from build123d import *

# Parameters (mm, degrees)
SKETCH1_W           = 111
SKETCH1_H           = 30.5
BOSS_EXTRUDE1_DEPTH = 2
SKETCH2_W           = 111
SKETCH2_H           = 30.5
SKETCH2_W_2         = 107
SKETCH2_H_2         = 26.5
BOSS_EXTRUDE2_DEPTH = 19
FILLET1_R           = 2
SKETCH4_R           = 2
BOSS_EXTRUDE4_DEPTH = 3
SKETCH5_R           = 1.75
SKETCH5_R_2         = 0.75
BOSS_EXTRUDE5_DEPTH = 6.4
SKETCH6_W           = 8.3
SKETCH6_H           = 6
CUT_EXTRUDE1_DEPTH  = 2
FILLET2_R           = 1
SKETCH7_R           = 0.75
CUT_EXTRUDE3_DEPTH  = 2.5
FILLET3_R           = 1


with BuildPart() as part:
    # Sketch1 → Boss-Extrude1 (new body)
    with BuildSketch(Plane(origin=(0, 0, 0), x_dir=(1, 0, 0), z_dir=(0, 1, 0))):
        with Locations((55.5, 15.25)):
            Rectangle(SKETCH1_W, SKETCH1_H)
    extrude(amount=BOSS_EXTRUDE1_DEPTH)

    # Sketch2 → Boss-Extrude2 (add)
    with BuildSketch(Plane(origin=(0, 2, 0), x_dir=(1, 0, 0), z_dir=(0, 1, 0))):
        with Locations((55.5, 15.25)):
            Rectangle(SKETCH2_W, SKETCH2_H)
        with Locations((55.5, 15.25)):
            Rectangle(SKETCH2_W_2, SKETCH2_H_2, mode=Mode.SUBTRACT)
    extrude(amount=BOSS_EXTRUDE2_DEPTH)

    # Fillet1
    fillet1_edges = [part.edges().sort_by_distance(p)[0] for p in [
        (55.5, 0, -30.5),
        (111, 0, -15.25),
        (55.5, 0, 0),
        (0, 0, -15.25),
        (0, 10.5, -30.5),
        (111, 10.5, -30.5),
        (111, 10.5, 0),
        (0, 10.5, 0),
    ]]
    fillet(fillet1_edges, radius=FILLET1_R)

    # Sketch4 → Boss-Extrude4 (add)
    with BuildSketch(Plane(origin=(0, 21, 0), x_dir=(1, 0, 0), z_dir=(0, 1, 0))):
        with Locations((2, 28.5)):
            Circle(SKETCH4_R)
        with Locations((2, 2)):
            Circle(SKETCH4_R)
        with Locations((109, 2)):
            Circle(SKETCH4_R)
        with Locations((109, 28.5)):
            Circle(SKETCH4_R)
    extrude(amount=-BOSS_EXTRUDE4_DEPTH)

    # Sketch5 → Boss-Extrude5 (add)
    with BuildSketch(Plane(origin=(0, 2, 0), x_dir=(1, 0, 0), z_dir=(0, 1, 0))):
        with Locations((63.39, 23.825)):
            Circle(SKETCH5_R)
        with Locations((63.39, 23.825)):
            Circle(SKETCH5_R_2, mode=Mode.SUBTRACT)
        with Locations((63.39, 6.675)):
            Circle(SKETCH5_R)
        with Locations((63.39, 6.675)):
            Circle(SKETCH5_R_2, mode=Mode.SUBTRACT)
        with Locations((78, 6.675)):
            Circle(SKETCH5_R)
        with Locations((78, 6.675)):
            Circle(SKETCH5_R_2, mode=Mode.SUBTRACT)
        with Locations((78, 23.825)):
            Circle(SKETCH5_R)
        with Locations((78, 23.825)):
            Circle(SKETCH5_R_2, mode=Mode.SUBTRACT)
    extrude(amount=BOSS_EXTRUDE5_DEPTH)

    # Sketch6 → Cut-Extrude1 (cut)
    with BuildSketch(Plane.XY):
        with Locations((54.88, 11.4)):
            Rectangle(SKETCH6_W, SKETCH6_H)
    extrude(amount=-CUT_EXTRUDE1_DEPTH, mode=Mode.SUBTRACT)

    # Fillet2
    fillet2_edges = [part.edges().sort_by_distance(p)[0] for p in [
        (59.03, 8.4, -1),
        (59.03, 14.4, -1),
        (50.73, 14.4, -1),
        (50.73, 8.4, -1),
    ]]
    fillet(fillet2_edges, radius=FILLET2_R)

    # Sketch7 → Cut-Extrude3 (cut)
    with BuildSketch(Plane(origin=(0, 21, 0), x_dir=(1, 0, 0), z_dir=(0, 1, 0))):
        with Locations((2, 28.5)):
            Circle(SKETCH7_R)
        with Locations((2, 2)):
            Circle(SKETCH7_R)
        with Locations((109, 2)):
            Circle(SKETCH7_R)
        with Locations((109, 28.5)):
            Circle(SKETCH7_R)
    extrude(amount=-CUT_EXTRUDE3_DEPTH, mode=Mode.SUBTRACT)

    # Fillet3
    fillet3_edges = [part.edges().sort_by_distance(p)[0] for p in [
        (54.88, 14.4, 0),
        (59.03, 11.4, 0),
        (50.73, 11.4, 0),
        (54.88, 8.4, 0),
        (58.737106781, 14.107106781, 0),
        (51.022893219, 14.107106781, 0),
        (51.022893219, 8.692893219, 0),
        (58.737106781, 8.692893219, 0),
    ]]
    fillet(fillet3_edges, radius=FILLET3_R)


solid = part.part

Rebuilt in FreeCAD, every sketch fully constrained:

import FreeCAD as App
import Part
import Sketcher
Q = App.Units.Quantity


def edges_at(feature, points):
    """Names of the edges that pass closest to the given points."""
    edges = feature.Shape.Edges
    near = lambda p: min(range(len(edges)), key=lambda i: edges[i].distToShape(Part.Vertex(*p))[0])
    return sorted({f"Edge{near(p) + 1}" for p in points})

doc = App.newDocument("Part")
body = doc.addObject("PartDesign::Body", "Body")

sketch1 = body.newObject("Sketcher::SketchObject", "Sketch")
sketch1.AttachmentSupport = (doc.getObject("XZ_Plane"), [""])
sketch1.MapMode = "FlatFace"
sketch1.addGeometry(Part.LineSegment(App.Vector(0, -30, 0), App.Vector(0, 0, 0)), False)
sketch1.addGeometry(Part.LineSegment(App.Vector(0, 0, 0), App.Vector(111, 0, 0)), False)
sketch1.addGeometry(Part.LineSegment(App.Vector(111, 0, 0), App.Vector(111, -30, 0)), False)
sketch1.addGeometry(Part.LineSegment(App.Vector(111, -30, 0), App.Vector(0, -30, 0)), False)
sketch1.addConstraint(Sketcher.Constraint("Coincident", 0, 2, 1, 1))
sketch1.addConstraint(Sketcher.Constraint("Coincident", 1, 2, 2, 1))
sketch1.addConstraint(Sketcher.Constraint("Coincident", 2, 2, 3, 1))
sketch1.addConstraint(Sketcher.Constraint("Coincident", 3, 2, 0, 1))
sketch1.addConstraint(Sketcher.Constraint("Vertical", 0))
sketch1.addConstraint(Sketcher.Constraint("Horizontal", 1))
sketch1.addConstraint(Sketcher.Constraint("Vertical", 2))
sketch1.addConstraint(Sketcher.Constraint("Horizontal", 3))
sketch1.addConstraint(Sketcher.Constraint("Coincident", 0, 2, -1, 1))
sketch1.addConstraint(Sketcher.Constraint("DistanceX", 1, 1, 1, 2, Q("111 mm")))
sketch1.addConstraint(Sketcher.Constraint("DistanceY", 0, 1, 0, 2, Q("30.5 mm")))
pad1 = body.newObject("PartDesign::Pad", "Pad")
pad1.Profile = sketch1
pad1.Length = 2
pad1.Reversed = True

sketch2 = body.newObject("Sketcher::SketchObject", "Sketch001")
sketch2.AttachmentSupport = (doc.getObject("XZ_Plane"), [""])
sketch2.MapMode = "FlatFace"
sketch2.AttachmentOffset = App.Placement(App.Vector(0, 0, -2), App.Rotation())
sketch2.addGeometry(Part.LineSegment(App.Vector(0, -30, 0), App.Vector(0, 0, 0)), False)
sketch2.addGeometry(Part.LineSegment(App.Vector(0, 0, 0), App.Vector(111, 0, 0)), False)
sketch2.addGeometry(Part.LineSegment(App.Vector(111, 0, 0), App.Vector(111, -30, 0)), False)
sketch2.addGeometry(Part.LineSegment(App.Vector(111, -30, 0), App.Vector(0, -30, 0)), False)
sketch2.addGeometry(Part.LineSegment(App.Vector(109, -2, 0), App.Vector(2, -2, 0)), False)
sketch2.addGeometry(Part.LineSegment(App.Vector(2, -2, 0), App.Vector(2, -28, 0)), False)
sketch2.addGeometry(Part.LineSegment(App.Vector(2, -28, 0), App.Vector(109, -28, 0)), False)
sketch2.addGeometry(Part.LineSegment(App.Vector(109, -28, 0), App.Vector(109, -2, 0)), False)
sketch2.addConstraint(Sketcher.Constraint("Coincident", 0, 2, 1, 1))
sketch2.addConstraint(Sketcher.Constraint("Coincident", 1, 2, 2, 1))
sketch2.addConstraint(Sketcher.Constraint("Coincident", 2, 2, 3, 1))
sketch2.addConstraint(Sketcher.Constraint("Coincident", 3, 2, 0, 1))
sketch2.addConstraint(Sketcher.Constraint("Coincident", 4, 2, 5, 1))
sketch2.addConstraint(Sketcher.Constraint("Coincident", 5, 2, 6, 1))
sketch2.addConstraint(Sketcher.Constraint("Coincident", 6, 2, 7, 1))
sketch2.addConstraint(Sketcher.Constraint("Coincident", 7, 2, 4, 1))
sketch2.addConstraint(Sketcher.Constraint("Vertical", 0))
sketch2.addConstraint(Sketcher.Constraint("Horizontal", 1))
sketch2.addConstraint(Sketcher.Constraint("Vertical", 2))
sketch2.addConstraint(Sketcher.Constraint("Horizontal", 3))
sketch2.addConstraint(Sketcher.Constraint("Horizontal", 4))
sketch2.addConstraint(Sketcher.Constraint("Vertical", 5))
sketch2.addConstraint(Sketcher.Constraint("Horizontal", 6))
sketch2.addConstraint(Sketcher.Constraint("Vertical", 7))
sketch2.addConstraint(Sketcher.Constraint("Coincident", 0, 2, -1, 1))
sketch2.addConstraint(Sketcher.Constraint("DistanceX", 1, 1, 1, 2, Q("111 mm")))
sketch2.addConstraint(Sketcher.Constraint("DistanceX", 4, 2, 4, 1, Q("107 mm")))
sketch2.addConstraint(Sketcher.Constraint("DistanceY", 0, 1, 0, 2, Q("30.5 mm")))
sketch2.addConstraint(Sketcher.Constraint("DistanceY", 5, 2, 5, 1, Q("26.5 mm")))
sketch2.addConstraint(Sketcher.Constraint("DistanceX", -1, 1, 4, 2, Q("2 mm")))
sketch2.addConstraint(Sketcher.Constraint("DistanceY", 4, 2, -1, 1, Q("2 mm")))
pad2 = body.newObject("PartDesign::Pad", "Pad001")
pad2.Profile = sketch2
pad2.Length = 19
pad2.Reversed = True
doc.recompute()

fillet = body.newObject("PartDesign::Fillet", "Fillet")
fillet.Base = (pad2, edges_at(pad2, [
    (55.5, 0, -30.5),
    (111, 0, -15.25),
    (55.5, 0, 0),
    (0, 0, -15.25),
    (0, 10.5, -30.5),
    (111, 10.5, -30.5),
    (111, 10.5, 0),
    (0, 10.5, 0),
]))
fillet.Radius = 2

sketch3 = body.newObject("Sketcher::SketchObject", "Sketch002")
sketch3.AttachmentSupport = (doc.getObject("XZ_Plane"), [""])
sketch3.MapMode = "FlatFace"
sketch3.AttachmentOffset = App.Placement(App.Vector(0, 0, -21), App.Rotation())
sketch3.addGeometry(Part.Circle(App.Vector(2, -28.5, 0), App.Vector(0, 0, 1), 2), False)
sketch3.addGeometry(Part.Circle(App.Vector(2, -2, 0), App.Vector(0, 0, 1), 2), False)
sketch3.addGeometry(Part.Circle(App.Vector(109, -2, 0), App.Vector(0, 0, 1), 2), False)
sketch3.addGeometry(Part.Circle(App.Vector(109, -28.5, 0), App.Vector(0, 0, 1), 2), False)
sketch3.addConstraint(Sketcher.Constraint("Equal", 0, 1))
sketch3.addConstraint(Sketcher.Constraint("Equal", 1, 2))
sketch3.addConstraint(Sketcher.Constraint("Equal", 2, 3))
sketch3.addConstraint(Sketcher.Constraint("Horizontal", 1, 3, 2, 3))
sketch3.addConstraint(Sketcher.Constraint("Horizontal", 0, 3, 3, 3))
sketch3.addConstraint(Sketcher.Constraint("Vertical", 0, 3, 1, 3))
sketch3.addConstraint(Sketcher.Constraint("Vertical", 2, 3, 3, 3))
sketch3.addConstraint(Sketcher.Constraint("Diameter", 0, Q("4 mm")))
sketch3.addConstraint(Sketcher.Constraint("DistanceX", -1, 1, 0, 3, Q("2 mm")))
sketch3.addConstraint(Sketcher.Constraint("DistanceY", 1, 3, -1, 1, Q("2 mm")))
sketch3.addConstraint(Sketcher.Constraint("DistanceX", -1, 1, 2, 3, Q("109 mm")))
sketch3.addConstraint(Sketcher.Constraint("DistanceY", 0, 3, -1, 1, Q("28.5 mm")))
pad3 = body.newObject("PartDesign::Pad", "Pad002")
pad3.Profile = sketch3
pad3.Length = 3

sketch4 = body.newObject("Sketcher::SketchObject", "Sketch003")
sketch4.AttachmentSupport = (doc.getObject("XZ_Plane"), [""])
sketch4.MapMode = "FlatFace"
sketch4.AttachmentOffset = App.Placement(App.Vector(0, 0, -2), App.Rotation())
sketch4.addGeometry(Part.Circle(App.Vector(63.4, -23.8, 0), App.Vector(0, 0, 1), 1.8), False)
sketch4.addGeometry(Part.Circle(App.Vector(63.4, -23.8, 0), App.Vector(0, 0, 1), 0.8), False)
sketch4.addGeometry(Part.Circle(App.Vector(63.4, -6.7, 0), App.Vector(0, 0, 1), 1.8), False)
sketch4.addGeometry(Part.Circle(App.Vector(63.4, -6.7, 0), App.Vector(0, 0, 1), 0.8), False)
sketch4.addGeometry(Part.Circle(App.Vector(78, -6.7, 0), App.Vector(0, 0, 1), 1.8), False)
sketch4.addGeometry(Part.Circle(App.Vector(78, -6.7, 0), App.Vector(0, 0, 1), 0.8), False)
sketch4.addGeometry(Part.Circle(App.Vector(78, -23.8, 0), App.Vector(0, 0, 1), 1.8), False)
sketch4.addGeometry(Part.Circle(App.Vector(78, -23.8, 0), App.Vector(0, 0, 1), 0.8), False)
sketch4.addConstraint(Sketcher.Constraint("Coincident", 1, 3, 0, 3))
sketch4.addConstraint(Sketcher.Constraint("Coincident", 3, 3, 2, 3))
sketch4.addConstraint(Sketcher.Constraint("Coincident", 5, 3, 4, 3))
sketch4.addConstraint(Sketcher.Constraint("Coincident", 7, 3, 6, 3))
sketch4.addConstraint(Sketcher.Constraint("Equal", 0, 2))
sketch4.addConstraint(Sketcher.Constraint("Equal", 1, 3))
sketch4.addConstraint(Sketcher.Constraint("Equal", 2, 4))
sketch4.addConstraint(Sketcher.Constraint("Equal", 3, 5))
sketch4.addConstraint(Sketcher.Constraint("Equal", 4, 6))
sketch4.addConstraint(Sketcher.Constraint("Equal", 5, 7))
sketch4.addConstraint(Sketcher.Constraint("Horizontal", 3, 3, 4, 3))
sketch4.addConstraint(Sketcher.Constraint("Horizontal", 1, 3, 6, 3))
sketch4.addConstraint(Sketcher.Constraint("Vertical", 1, 3, 2, 3))
sketch4.addConstraint(Sketcher.Constraint("Vertical", 5, 3, 6, 3))
sketch4.addConstraint(Sketcher.Constraint("Diameter", 0, Q("3.5 mm")))
sketch4.addConstraint(Sketcher.Constraint("Diameter", 1, Q("1.5 mm")))
sketch4.addConstraint(Sketcher.Constraint("DistanceX", -1, 1, 4, 3, Q("78 mm")))
sketch4.addConstraint(Sketcher.Constraint("DistanceX", -1, 1, 0, 3, Q("63.39 mm")))
sketch4.addConstraint(Sketcher.Constraint("DistanceY", 0, 3, 2, 3, Q("17.15 mm")))
sketch4.addConstraint(Sketcher.Constraint("DistanceY", 0, 3, -1, 1, Q("23.825 mm")))
pad4 = body.newObject("PartDesign::Pad", "Pad003")
pad4.Profile = sketch4
pad4.Length = 6.4
pad4.Reversed = True

sketch5 = body.newObject("Sketcher::SketchObject", "Sketch004")
sketch5.AttachmentSupport = (doc.getObject("XY_Plane"), [""])
sketch5.MapMode = "FlatFace"
sketch5.addGeometry(Part.LineSegment(App.Vector(51, 14, 0), App.Vector(51, 8, 0)), False)
sketch5.addGeometry(Part.LineSegment(App.Vector(51, 8, 0), App.Vector(59, 8, 0)), False)
sketch5.addGeometry(Part.LineSegment(App.Vector(59, 8, 0), App.Vector(59, 14, 0)), False)
sketch5.addGeometry(Part.LineSegment(App.Vector(59, 14, 0), App.Vector(51, 14, 0)), False)
sketch5.addConstraint(Sketcher.Constraint("Coincident", 0, 2, 1, 1))
sketch5.addConstraint(Sketcher.Constraint("Coincident", 1, 2, 2, 1))
sketch5.addConstraint(Sketcher.Constraint("Coincident", 2, 2, 3, 1))
sketch5.addConstraint(Sketcher.Constraint("Coincident", 3, 2, 0, 1))
sketch5.addConstraint(Sketcher.Constraint("Vertical", 0))
sketch5.addConstraint(Sketcher.Constraint("Horizontal", 1))
sketch5.addConstraint(Sketcher.Constraint("Vertical", 2))
sketch5.addConstraint(Sketcher.Constraint("Horizontal", 3))
sketch5.addConstraint(Sketcher.Constraint("DistanceY", 0, 2, 0, 1, Q("6 mm")))
sketch5.addConstraint(Sketcher.Constraint("DistanceX", 1, 1, 1, 2, Q("8.3 mm")))
sketch5.addConstraint(Sketcher.Constraint("DistanceY", -1, 1, 0, 2, Q("8.4 mm")))
sketch5.addConstraint(Sketcher.Constraint("DistanceX", -1, 1, 0, 2, Q("50.73 mm")))
pocket1 = body.newObject("PartDesign::Pocket", "Pocket")
pocket1.Profile = sketch5
pocket1.Length = 2
doc.recompute()

fillet2 = body.newObject("PartDesign::Fillet", "Fillet001")
fillet2.Base = (pocket1, edges_at(pocket1, [
    (59.03, 8.4, -1),
    (59.03, 14.4, -1),
    (50.73, 14.4, -1),
    (50.73, 8.4, -1),
]))
fillet2.Radius = 1

sketch6 = body.newObject("Sketcher::SketchObject", "Sketch005")
sketch6.AttachmentSupport = (doc.getObject("XZ_Plane"), [""])
sketch6.MapMode = "FlatFace"
sketch6.AttachmentOffset = App.Placement(App.Vector(0, 0, -21), App.Rotation())
sketch6.addGeometry(Part.Circle(App.Vector(2, -28.5, 0), App.Vector(0, 0, 1), 0.8), False)
sketch6.addGeometry(Part.Circle(App.Vector(2, -2, 0), App.Vector(0, 0, 1), 0.8), False)
sketch6.addGeometry(Part.Circle(App.Vector(109, -2, 0), App.Vector(0, 0, 1), 0.8), False)
sketch6.addGeometry(Part.Circle(App.Vector(109, -28.5, 0), App.Vector(0, 0, 1), 0.8), False)
sketch6.addConstraint(Sketcher.Constraint("Equal", 0, 1))
sketch6.addConstraint(Sketcher.Constraint("Equal", 1, 2))
sketch6.addConstraint(Sketcher.Constraint("Equal", 2, 3))
sketch6.addConstraint(Sketcher.Constraint("Horizontal", 1, 3, 2, 3))
sketch6.addConstraint(Sketcher.Constraint("Horizontal", 0, 3, 3, 3))
sketch6.addConstraint(Sketcher.Constraint("Vertical", 0, 3, 1, 3))
sketch6.addConstraint(Sketcher.Constraint("Vertical", 2, 3, 3, 3))
sketch6.addConstraint(Sketcher.Constraint("Diameter", 0, Q("1.5 mm")))
sketch6.addConstraint(Sketcher.Constraint("DistanceX", -1, 1, 0, 3, Q("2 mm")))
sketch6.addConstraint(Sketcher.Constraint("DistanceY", 1, 3, -1, 1, Q("2 mm")))
sketch6.addConstraint(Sketcher.Constraint("DistanceX", -1, 1, 2, 3, Q("109 mm")))
sketch6.addConstraint(Sketcher.Constraint("DistanceY", 0, 3, -1, 1, Q("28.5 mm")))
pocket2 = body.newObject("PartDesign::Pocket", "Pocket001")
pocket2.Profile = sketch6
pocket2.Length = 2.5
pocket2.Reversed = True
doc.recompute()

fillet3 = body.newObject("PartDesign::Fillet", "Fillet002")
fillet3.Base = (pocket2, edges_at(pocket2, [
    (54.88, 14.4, 0),
    (59.03, 11.4, 0),
    (50.73, 11.4, 0),
    (54.88, 8.4, 0),
    (58.737, 14.107, 0),
    (51.023, 14.107, 0),
    (51.023, 8.693, 0),
    (58.737, 8.693, 0),
]))
fillet3.Radius = 1

doc.recompute()
